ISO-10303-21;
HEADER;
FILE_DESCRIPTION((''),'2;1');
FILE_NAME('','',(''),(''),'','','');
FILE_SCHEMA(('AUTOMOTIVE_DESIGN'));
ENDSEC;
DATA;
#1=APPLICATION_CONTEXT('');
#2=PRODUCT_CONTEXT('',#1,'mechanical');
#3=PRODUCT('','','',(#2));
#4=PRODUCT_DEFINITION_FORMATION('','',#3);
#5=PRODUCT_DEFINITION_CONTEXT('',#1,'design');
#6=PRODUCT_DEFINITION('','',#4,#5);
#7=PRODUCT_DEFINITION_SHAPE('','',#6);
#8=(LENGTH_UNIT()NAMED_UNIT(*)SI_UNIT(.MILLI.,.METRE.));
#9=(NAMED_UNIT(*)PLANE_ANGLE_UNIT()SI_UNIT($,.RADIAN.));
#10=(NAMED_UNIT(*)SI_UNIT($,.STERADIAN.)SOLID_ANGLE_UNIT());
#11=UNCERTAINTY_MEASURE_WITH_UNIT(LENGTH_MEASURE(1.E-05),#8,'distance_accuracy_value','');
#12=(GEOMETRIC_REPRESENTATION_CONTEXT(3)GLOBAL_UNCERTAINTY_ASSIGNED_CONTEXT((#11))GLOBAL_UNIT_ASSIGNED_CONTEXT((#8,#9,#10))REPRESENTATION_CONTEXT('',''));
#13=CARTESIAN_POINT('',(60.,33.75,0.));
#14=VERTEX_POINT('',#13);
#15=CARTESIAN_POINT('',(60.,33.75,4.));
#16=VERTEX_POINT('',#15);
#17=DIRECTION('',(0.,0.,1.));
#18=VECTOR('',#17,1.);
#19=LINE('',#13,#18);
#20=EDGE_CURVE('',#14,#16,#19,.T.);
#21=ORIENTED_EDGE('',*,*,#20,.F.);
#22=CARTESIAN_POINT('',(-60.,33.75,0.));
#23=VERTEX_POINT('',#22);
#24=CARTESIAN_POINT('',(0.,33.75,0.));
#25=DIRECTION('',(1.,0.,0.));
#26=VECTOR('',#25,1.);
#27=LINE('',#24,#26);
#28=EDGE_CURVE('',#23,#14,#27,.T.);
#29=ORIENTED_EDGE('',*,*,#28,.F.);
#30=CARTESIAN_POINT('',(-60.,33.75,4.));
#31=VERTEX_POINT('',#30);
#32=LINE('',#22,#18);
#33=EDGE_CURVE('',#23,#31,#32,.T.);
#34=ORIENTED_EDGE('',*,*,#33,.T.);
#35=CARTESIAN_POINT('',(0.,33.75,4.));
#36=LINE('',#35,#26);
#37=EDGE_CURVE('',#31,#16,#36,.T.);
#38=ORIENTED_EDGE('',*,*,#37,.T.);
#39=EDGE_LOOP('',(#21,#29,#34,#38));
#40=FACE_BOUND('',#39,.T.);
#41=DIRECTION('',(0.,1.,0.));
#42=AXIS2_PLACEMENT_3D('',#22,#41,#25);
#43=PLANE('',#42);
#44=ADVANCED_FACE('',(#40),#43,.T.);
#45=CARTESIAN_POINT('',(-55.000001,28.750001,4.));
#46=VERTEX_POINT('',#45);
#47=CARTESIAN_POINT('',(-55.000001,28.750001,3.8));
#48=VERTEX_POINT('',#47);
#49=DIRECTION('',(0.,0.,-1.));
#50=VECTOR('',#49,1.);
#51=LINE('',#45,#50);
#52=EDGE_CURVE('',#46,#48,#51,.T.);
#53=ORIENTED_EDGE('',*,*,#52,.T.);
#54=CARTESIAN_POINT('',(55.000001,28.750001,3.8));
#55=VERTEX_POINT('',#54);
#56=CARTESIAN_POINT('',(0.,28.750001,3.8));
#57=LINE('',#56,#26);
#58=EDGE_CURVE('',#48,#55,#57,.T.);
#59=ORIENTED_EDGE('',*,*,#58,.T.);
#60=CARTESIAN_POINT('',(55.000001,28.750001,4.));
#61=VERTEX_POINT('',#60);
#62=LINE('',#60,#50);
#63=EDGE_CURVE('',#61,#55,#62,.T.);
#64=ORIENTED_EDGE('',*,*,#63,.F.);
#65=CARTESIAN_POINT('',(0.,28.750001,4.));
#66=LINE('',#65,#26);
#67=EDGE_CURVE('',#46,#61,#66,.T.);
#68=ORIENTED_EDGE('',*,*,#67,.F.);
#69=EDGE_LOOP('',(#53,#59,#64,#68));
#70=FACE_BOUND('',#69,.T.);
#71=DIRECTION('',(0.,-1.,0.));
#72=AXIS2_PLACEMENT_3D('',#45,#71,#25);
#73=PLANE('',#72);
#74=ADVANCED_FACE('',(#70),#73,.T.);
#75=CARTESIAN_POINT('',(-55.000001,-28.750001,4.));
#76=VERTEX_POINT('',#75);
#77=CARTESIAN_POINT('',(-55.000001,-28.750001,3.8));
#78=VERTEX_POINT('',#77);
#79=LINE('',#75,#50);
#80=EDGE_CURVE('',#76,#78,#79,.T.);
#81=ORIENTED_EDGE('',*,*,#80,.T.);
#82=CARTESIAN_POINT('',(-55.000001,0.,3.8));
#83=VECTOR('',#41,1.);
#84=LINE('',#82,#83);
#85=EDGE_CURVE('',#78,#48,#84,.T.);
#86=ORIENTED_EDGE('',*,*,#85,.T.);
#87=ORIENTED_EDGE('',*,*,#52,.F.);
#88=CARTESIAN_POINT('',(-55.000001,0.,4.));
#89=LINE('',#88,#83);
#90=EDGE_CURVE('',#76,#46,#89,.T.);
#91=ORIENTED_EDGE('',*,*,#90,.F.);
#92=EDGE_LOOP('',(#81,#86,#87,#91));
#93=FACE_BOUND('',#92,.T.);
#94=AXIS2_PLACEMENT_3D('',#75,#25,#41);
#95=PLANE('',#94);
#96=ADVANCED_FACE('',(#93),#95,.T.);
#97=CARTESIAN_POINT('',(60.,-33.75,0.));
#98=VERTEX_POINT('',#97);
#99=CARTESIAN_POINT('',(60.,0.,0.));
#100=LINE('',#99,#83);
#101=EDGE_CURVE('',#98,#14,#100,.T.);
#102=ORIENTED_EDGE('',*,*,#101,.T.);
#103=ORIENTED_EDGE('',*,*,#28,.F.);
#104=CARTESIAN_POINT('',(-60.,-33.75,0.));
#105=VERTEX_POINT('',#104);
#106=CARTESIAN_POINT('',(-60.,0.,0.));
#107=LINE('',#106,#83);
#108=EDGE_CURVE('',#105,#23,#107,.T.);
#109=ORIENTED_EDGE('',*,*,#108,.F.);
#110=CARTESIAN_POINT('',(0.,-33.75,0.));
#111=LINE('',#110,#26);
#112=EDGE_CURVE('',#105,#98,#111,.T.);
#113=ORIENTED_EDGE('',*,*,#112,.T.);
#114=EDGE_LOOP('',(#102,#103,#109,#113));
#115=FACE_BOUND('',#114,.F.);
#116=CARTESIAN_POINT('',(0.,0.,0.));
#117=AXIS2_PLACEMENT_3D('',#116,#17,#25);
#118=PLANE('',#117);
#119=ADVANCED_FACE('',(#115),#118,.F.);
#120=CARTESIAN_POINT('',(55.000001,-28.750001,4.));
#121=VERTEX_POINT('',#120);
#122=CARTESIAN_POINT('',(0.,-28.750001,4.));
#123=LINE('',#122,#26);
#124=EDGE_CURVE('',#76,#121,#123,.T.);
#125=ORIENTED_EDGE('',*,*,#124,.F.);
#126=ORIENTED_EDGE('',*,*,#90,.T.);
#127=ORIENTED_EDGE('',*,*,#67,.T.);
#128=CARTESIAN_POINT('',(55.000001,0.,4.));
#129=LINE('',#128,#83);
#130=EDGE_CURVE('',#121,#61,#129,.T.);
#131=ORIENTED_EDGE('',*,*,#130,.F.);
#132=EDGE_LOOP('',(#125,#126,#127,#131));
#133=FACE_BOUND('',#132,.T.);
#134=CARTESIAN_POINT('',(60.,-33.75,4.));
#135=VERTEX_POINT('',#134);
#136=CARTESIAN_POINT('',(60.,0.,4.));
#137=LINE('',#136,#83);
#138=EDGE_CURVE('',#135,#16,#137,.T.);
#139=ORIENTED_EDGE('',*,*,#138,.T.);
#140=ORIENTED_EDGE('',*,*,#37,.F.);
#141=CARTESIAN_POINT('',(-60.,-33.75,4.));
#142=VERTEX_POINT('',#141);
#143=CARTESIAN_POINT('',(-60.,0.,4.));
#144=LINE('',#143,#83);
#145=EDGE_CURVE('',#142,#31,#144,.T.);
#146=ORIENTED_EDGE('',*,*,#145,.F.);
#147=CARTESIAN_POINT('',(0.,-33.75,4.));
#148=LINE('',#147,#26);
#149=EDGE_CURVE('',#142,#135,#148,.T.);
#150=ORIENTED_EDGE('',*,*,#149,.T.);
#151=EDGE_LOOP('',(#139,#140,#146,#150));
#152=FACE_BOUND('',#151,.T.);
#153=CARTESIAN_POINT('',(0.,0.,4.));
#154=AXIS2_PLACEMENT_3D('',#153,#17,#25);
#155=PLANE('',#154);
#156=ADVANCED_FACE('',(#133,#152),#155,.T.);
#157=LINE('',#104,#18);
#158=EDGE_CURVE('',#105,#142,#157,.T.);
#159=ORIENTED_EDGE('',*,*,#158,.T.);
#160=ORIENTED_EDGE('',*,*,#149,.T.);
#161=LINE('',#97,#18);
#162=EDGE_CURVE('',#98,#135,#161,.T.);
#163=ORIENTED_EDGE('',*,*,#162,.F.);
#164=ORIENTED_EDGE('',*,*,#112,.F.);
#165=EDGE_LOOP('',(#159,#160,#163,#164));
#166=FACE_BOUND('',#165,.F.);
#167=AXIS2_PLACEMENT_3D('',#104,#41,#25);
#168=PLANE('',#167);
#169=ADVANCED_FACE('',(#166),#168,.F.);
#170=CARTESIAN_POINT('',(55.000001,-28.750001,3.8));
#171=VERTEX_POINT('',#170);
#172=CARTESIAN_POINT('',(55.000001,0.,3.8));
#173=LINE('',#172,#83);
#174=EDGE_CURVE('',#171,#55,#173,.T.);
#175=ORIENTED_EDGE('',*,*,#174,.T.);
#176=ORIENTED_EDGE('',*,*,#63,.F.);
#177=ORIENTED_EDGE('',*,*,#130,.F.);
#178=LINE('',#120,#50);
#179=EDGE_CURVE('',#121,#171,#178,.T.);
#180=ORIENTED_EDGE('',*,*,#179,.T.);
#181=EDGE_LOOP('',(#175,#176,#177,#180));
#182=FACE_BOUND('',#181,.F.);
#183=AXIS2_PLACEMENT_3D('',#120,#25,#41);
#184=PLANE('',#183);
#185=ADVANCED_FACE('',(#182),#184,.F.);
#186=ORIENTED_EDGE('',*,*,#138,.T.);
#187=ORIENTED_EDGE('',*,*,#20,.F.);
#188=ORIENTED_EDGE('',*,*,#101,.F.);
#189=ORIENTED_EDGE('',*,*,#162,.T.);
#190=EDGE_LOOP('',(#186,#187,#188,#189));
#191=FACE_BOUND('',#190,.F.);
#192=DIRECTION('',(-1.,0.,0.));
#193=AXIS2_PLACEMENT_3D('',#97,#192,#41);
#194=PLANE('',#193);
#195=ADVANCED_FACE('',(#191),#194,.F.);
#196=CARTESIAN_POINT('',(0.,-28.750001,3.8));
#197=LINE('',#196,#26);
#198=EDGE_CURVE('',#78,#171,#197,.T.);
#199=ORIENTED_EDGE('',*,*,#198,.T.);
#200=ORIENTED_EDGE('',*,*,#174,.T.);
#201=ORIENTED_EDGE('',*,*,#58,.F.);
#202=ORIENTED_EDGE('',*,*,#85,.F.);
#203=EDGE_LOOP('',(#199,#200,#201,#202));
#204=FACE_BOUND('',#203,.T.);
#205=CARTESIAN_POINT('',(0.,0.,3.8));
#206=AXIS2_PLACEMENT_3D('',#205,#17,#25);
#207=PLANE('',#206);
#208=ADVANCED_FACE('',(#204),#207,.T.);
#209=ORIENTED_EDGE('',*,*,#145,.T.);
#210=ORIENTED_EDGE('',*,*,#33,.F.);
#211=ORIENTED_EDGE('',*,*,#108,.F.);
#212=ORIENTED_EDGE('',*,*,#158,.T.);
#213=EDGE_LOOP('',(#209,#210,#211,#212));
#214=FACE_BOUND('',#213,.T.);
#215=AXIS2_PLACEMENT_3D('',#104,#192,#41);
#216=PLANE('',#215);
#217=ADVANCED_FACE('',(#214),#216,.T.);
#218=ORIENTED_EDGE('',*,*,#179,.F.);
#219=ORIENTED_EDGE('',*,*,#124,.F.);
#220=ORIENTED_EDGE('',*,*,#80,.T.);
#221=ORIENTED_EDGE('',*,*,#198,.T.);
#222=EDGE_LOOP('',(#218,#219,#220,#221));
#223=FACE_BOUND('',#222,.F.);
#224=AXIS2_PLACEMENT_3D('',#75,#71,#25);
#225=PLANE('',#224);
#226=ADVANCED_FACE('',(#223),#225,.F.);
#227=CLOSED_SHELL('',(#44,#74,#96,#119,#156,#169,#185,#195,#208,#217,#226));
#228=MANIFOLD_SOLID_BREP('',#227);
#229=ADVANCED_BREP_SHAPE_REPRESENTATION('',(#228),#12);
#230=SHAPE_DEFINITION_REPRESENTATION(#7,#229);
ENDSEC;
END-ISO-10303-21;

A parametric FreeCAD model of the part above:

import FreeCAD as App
import Part
import Sketcher
from FreeCAD import Vector
Q = App.Units.Quantity


def add_polygon(sketch, points):
    """Adds a closed chain of lines whose ends are joined by coincident constraints."""
    first, n = sketch.GeometryCount, len(points)
    for a, b in zip(points, points[1:] + points[:1]):
        sketch.addGeometry(Part.LineSegment(App.Vector(*a, 0), App.Vector(*b, 0)), False)
    for i in range(n):
        sketch.addConstraint(Sketcher.Constraint("Coincident", first + i, 2, first + (i + 1) % n, 1))

doc = App.newDocument("Part")
params = doc.addObject("Spreadsheet::Sheet", "Params")
for row, (alias, value) in enumerate([
    ("sketch1_width", "120 mm"),
    ("sketch1_height", "67.5 mm"),
    ("pad1_length", "4 mm"),
    ("sketch2_width", "110.000002 mm"),
    ("pocket1_length", "0.2 mm"),
], start=1):
    params.set(f"A{row}", alias)
    params.set(f"B{row}", "=" + value)
    params.setAlias(f"B{row}", alias)

body = doc.addObject("PartDesign::Body", "Body")

# Sketch on XY plane
sketch1 = body.newObject("Sketcher::SketchObject", "Sketch")
sketch1.AttachmentSupport = (doc.getObject("XY_Plane"), [""])
sketch1.MapMode = "FlatFace"
add_polygon(sketch1, [(-60, 33.75), (-60, -33.75), (60, -33.75), (60, 33.75)])  # lines 0-3
sketch1.addConstraint([
    Sketcher.Constraint("Vertical", 0),
    Sketcher.Constraint("Horizontal", 1),
    Sketcher.Constraint("Vertical", 2),
    Sketcher.Constraint("Horizontal", 3),
    Sketcher.Constraint("Symmetric", 0, 2, 2, 2, -1, 1),
    Sketcher.Constraint("DistanceX", 1, 1, 1, 2, Q("120 mm")),
    Sketcher.Constraint("DistanceY", 0, 2, 0, 1, Q("67.5 mm")),
])
sketch1.setExpression("Constraints[9]", "Params.sketch1_width")
sketch1.setExpression("Constraints[10]", "Params.sketch1_height")
pad1 = body.newObject("PartDesign::Pad", "Pad")
pad1.Profile = sketch1
pad1.setExpression("Length", "Params.pad1_length")

# Sketch on XY plane
sketch2 = body.newObject("Sketcher::SketchObject", "Sketch001")
sketch2.AttachmentSupport = (doc.getObject("XY_Plane"), [""])
sketch2.MapMode = "FlatFace"
sketch2.AttachmentOffset = App.Placement(Vector(0, 0, 4), App.Rotation())
add_polygon(sketch2, [(-55.000001, 28.750001), (-55.000001, -28.750001), (55.000001, -28.750001), (55.000001, 28.750001)])  # lines 0-3
sketch2.addConstraint([
    Sketcher.Constraint("Vertical", 0),
    Sketcher.Constraint("Horizontal", 1),
    Sketcher.Constraint("Vertical", 2),
    Sketcher.Constraint("Horizontal", 3),
    Sketcher.Constraint("Symmetric", 0, 2, 2, 2, -1, 1),
    Sketcher.Constraint("DistanceX", 1, 1, 1, 2, Q("110.000002 mm")),
    Sketcher.Constraint("DistanceY", 0, 2, -1, 1, Q("28.750001 mm")),
])
sketch2.setExpression("Constraints[9]", "Params.sketch2_width")
pocket1 = body.newObject("PartDesign::Pocket", "Pocket")
pocket1.Profile = sketch2
pocket1.setExpression("Length", "Params.pocket1_length")

doc.recompute()
